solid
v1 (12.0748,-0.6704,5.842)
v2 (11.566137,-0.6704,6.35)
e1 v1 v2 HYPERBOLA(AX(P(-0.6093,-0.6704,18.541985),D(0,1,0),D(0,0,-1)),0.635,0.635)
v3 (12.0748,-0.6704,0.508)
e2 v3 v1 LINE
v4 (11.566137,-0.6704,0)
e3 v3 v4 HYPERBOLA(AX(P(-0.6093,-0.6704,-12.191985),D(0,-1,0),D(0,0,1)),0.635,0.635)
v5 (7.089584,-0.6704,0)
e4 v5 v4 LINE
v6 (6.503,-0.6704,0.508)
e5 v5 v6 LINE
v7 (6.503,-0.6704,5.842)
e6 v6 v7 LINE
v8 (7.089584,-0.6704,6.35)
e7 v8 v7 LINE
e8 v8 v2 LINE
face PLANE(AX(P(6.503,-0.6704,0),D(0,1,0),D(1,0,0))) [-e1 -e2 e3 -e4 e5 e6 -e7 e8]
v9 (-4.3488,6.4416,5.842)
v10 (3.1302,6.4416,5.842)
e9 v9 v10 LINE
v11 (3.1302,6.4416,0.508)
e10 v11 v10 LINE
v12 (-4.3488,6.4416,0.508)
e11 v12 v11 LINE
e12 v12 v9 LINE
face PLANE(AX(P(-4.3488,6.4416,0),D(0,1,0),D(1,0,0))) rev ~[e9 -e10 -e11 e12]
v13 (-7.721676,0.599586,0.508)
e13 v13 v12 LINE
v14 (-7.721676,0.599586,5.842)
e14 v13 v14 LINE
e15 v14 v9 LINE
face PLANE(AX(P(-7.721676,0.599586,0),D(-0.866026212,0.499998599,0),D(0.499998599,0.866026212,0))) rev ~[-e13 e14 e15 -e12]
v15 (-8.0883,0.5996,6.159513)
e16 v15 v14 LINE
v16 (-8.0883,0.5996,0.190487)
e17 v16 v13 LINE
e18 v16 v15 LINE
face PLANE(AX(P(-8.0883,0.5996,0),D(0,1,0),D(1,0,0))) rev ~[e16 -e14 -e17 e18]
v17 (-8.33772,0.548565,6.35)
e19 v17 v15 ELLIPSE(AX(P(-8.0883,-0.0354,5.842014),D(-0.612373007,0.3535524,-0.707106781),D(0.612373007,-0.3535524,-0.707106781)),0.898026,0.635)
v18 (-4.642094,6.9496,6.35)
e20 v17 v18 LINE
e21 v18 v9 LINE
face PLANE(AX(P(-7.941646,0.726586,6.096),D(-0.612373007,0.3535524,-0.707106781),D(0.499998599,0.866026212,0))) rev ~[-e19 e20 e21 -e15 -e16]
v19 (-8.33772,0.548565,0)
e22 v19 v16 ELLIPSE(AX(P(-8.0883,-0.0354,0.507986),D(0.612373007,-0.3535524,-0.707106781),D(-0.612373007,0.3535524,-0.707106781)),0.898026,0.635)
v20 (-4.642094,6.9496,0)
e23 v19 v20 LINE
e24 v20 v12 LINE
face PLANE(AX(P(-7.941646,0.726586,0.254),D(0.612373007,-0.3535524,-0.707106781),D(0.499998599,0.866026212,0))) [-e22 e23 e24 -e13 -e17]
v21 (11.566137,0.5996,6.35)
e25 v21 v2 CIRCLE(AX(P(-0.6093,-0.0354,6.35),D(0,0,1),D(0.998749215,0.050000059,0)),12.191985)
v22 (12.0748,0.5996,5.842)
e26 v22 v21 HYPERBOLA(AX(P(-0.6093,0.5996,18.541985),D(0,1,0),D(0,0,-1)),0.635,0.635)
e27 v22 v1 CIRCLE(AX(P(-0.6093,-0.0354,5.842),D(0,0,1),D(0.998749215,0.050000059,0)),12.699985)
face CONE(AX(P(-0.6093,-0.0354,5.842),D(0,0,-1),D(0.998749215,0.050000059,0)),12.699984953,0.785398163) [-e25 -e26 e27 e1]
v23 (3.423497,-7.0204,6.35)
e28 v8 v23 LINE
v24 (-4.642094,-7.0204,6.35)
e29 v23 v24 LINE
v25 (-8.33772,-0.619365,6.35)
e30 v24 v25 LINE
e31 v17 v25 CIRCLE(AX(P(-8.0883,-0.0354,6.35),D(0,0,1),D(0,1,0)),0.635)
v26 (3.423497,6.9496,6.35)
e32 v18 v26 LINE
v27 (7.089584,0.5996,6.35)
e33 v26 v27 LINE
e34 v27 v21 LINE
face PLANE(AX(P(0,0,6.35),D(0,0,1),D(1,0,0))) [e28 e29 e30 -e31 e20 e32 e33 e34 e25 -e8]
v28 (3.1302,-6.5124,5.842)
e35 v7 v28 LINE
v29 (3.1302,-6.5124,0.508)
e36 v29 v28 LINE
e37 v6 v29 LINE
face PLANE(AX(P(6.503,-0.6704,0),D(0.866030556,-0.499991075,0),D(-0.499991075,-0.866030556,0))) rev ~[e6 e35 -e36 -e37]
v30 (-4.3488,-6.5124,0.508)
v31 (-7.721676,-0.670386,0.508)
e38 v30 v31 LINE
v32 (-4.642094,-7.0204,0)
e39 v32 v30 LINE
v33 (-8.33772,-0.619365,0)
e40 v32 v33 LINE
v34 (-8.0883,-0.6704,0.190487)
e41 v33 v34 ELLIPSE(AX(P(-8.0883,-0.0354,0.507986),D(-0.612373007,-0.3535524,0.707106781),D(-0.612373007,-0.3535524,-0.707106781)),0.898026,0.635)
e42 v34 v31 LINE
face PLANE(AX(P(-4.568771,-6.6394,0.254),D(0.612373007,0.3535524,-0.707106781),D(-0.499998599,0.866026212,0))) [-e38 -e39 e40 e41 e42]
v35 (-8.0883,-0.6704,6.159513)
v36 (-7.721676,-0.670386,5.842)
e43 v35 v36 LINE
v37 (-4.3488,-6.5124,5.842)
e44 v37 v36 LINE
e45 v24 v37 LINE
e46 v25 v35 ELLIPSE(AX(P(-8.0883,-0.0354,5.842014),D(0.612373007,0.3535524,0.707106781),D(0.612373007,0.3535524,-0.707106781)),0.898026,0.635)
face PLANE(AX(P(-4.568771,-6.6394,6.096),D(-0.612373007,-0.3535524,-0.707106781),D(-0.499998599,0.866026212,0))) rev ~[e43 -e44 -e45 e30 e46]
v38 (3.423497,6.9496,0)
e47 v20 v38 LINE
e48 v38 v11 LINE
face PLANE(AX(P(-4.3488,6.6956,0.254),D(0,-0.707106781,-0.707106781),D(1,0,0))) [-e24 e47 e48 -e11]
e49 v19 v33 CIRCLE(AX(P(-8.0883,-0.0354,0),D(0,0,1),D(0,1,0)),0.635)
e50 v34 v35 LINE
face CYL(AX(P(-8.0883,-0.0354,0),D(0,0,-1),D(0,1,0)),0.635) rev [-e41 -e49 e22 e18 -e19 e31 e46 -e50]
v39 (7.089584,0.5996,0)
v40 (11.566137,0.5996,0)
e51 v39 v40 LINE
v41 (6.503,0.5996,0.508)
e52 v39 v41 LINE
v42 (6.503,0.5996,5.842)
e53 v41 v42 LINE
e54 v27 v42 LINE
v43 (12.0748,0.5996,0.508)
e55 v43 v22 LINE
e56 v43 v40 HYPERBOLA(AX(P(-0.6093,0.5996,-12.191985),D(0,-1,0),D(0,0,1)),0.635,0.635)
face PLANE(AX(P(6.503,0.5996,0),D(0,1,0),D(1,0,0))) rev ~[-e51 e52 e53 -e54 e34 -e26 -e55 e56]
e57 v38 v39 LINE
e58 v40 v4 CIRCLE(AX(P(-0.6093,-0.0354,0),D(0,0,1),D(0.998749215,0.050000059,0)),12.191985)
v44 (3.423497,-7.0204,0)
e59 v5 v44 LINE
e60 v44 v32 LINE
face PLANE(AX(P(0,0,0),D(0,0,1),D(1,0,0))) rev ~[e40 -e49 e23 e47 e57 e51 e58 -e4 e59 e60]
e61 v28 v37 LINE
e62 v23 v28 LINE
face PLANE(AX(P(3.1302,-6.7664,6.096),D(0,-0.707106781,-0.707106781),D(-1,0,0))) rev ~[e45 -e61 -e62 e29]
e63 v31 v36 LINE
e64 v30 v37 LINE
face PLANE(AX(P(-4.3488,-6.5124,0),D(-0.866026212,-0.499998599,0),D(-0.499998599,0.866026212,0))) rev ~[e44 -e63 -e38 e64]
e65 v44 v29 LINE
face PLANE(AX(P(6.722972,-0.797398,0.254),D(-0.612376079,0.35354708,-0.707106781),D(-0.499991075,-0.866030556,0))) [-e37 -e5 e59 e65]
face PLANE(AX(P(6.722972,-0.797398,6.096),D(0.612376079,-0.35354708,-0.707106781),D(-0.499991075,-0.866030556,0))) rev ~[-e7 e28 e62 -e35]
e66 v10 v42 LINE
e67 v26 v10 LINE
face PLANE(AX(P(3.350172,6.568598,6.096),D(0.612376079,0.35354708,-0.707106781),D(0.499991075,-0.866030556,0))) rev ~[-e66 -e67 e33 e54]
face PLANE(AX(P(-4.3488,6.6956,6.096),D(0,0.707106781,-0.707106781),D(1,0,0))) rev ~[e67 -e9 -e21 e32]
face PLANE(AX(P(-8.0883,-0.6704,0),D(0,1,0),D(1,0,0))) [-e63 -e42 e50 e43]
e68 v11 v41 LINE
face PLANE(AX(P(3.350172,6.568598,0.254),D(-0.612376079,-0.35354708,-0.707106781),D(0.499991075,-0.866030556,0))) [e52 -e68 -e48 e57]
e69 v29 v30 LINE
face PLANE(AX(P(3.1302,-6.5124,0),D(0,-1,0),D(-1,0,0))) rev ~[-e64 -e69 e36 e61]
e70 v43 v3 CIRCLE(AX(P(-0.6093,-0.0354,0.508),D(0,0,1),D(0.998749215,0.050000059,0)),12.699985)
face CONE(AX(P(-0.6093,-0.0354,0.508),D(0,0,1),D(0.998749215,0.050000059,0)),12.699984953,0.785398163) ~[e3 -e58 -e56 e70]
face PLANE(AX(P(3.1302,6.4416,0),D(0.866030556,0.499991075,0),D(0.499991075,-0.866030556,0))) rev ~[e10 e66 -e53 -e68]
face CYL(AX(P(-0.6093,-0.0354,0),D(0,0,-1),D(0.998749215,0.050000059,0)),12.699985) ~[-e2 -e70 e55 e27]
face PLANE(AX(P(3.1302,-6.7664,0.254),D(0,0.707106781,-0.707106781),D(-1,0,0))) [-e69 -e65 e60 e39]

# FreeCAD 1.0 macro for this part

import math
import FreeCAD as App
import Part
import Sketcher

V = App.Vector
Q = App.Units.Quantity


def edges_at(feature, points):
    """Names of the edges that pass closest to the given points."""
    edges = feature.Shape.Edges
    near = lambda p: min(range(len(edges)), key=lambda i: edges[i].distToShape(Part.Vertex(*p))[0])
    return sorted({f"Edge{near(p) + 1}" for p in points})

doc = App.newDocument("Part")
body = doc.addObject("PartDesign::Body", "Body")

sketch1 = body.newObject("Sketcher::SketchObject", "Sketch")
sketch1.AttachmentSupport = (doc.getObject("XY_Plane"), [""])
sketch1.MapMode = "FlatFace"
sketch1.addGeometry(Part.LineSegment(V(-7.72, 0.6, 0), V(-4.35, 6.44, 0)), False)
sketch1.addGeometry(Part.LineSegment(V(-4.35, 6.44, 0), V(3.13, 6.44, 0)), False)
sketch1.addGeometry(Part.LineSegment(V(3.13, 6.44, 0), V(6.5, 0.6, 0)), False)
sketch1.addGeometry(Part.LineSegment(V(6.5, 0.6, 0), V(12.07, 0.6, 0)), False)
sketch1.addGeometry(Part.ArcOfCircle(Part.Circle(V(-0.61, -0.04, 0), V(0, 0, 1), 12.7), math.radians(3), math.radians(357)), False)
sketch1.addGeometry(Part.LineSegment(V(12.07, -0.67, 0), V(6.5, -0.67, 0)), False)
sketch1.addGeometry(Part.LineSegment(V(6.5, -0.67, 0), V(3.13, -6.51, 0)), False)
sketch1.addGeometry(Part.LineSegment(V(3.13, -6.51, 0), V(-4.35, -6.51, 0)), False)
sketch1.addGeometry(Part.LineSegment(V(-4.35, -6.51, 0), V(-7.72, -0.67, 0)), False)
sketch1.addGeometry(Part.LineSegment(V(-7.72, -0.67, 0), V(-8.09, -0.67, 0)), False)
sketch1.addGeometry(Part.ArcOfCircle(Part.Circle(V(-8.09, -0.04, 0), V(0, 0, 1), 0.64), math.radians(90), math.radians(270)), False)
sketch1.addGeometry(Part.LineSegment(V(-8.09, 0.6, 0), V(-7.72, 0.6, 0)), False)
sketch1.addConstraint(Sketcher.Constraint("Coincident", 0, 2, 1, 1))
sketch1.addConstraint(Sketcher.Constraint("Coincident", 1, 2, 2, 1))
sketch1.addConstraint(Sketcher.Constraint("Coincident", 2, 2, 3, 1))
sketch1.addConstraint(Sketcher.Constraint("Coincident", 3, 2, 4, 1))
sketch1.addConstraint(Sketcher.Constraint("Coincident", 4, 2, 5, 1))
sketch1.addConstraint(Sketcher.Constraint("Coincident", 5, 2, 6, 1))
sketch1.addConstraint(Sketcher.Constraint("Coincident", 6, 2, 7, 1))
sketch1.addConstraint(Sketcher.Constraint("Coincident", 7, 2, 8, 1))
sketch1.addConstraint(Sketcher.Constraint("Coincident", 8, 2, 9, 1))
sketch1.addConstraint(Sketcher.Constraint("Tangent", 9, 2, 10, 2))
sketch1.addConstraint(Sketcher.Constraint("Tangent", 10, 1, 11, 1))
sketch1.addConstraint(Sketcher.Constraint("Coincident", 11, 2, 0, 1))
sketch1.addConstraint(Sketcher.Constraint("Horizontal", 1))
sketch1.addConstraint(Sketcher.Constraint("Horizontal", 3))
sketch1.addConstraint(Sketcher.Constraint("Horizontal", 5))
sketch1.addConstraint(Sketcher.Constraint("Horizontal", 7))
sketch1.addConstraint(Sketcher.Constraint("Horizontal", 9))
sketch1.addConstraint(Sketcher.Constraint("Horizontal", 11))
sketch1.addConstraint(Sketcher.Constraint("Parallel", 0, 6))
sketch1.addConstraint(Sketcher.Constraint("Parallel", 2, 8))
sketch1.addConstraint(Sketcher.Constraint("Horizontal", 4, 3, 10, 3))
sketch1.addConstraint(Sketcher.Constraint("Horizontal", 5, 2, 8, 2))
sketch1.addConstraint(Sketcher.Constraint("Horizontal", 3, 2, 10, 1))
sketch1.addConstraint(Sketcher.Constraint("Vertical", 2, 2, 5, 2))
sketch1.addConstraint(Sketcher.Constraint("Vertical", 1, 2, 6, 2))
sketch1.addConstraint(Sketcher.Constraint("Vertical", 0, 2, 7, 2))
sketch1.addConstraint(Sketcher.Constraint("Vertical", 8, 2, 11, 2))
sketch1.addConstraint(Sketcher.Constraint("Radius", 4, Q("0.5 in")))
sketch1.addConstraint(Sketcher.Constraint("Radius", 10, Q("0.025 in")))
sketch1.addConstraint(Sketcher.Constraint("DistanceY", 7, 2, 0, 2, Q("0.51 in")))
sketch1.addConstraint(Sketcher.Constraint("Angle", 0, Q("60 deg")))
sketch1.addConstraint(Sketcher.Constraint("DistanceX", 4, 3, 2, 2, Q("0.28 in")))
sketch1.addConstraint(Sketcher.Constraint("DistanceX", 4, 3, -1, 1, Q("0.024 in")))
sketch1.addConstraint(Sketcher.Constraint("DistanceX", 8, 2, -1, 1, Q("0.304 in")))
sketch1.addConstraint(Sketcher.Constraint("DistanceX", 9, 2, 9, 1, Q("0.3666 mm")))
sketch1.addConstraint(Sketcher.Constraint("DistanceY", 4, 3, -1, 1, Q("0.0014 in")))
pad1 = body.newObject("PartDesign::Pad", "Pad")
pad1.Profile = sketch1
pad1.Length = Q("0.25 in")
doc.recompute()

chamfer = body.newObject("PartDesign::Chamfer", "Chamfer")
chamfer.Base = (pad1, edges_at(pad1, [(-13.309, -0.035, 6.35), (-13.309, -0.035, 0)]))
chamfer.Size = Q("0.02 in")
doc.recompute()

chamfer2 = body.newObject("PartDesign::Chamfer", "Chamfer001")
chamfer2.Base = (chamfer, edges_at(chamfer, [
    (-6.035, 3.521, 6.35),
    (-0.609, 6.442, 6.35),
    (4.817, 3.521, 6.35),
    (4.817, -3.591, 6.35),
    (-0.609, -6.512, 6.35),
    (-6.035, -3.591, 6.35),
    (-6.035, -3.591, 0),
    (-6.035, 3.521, 0),
    (-0.609, -6.512, 0),
    (4.817, -3.591, 0),
    (4.817, 3.521, 0),
    (-0.609, 6.442, 0),
]))
chamfer2.Size = Q("0.02 in")

doc.recompute()
